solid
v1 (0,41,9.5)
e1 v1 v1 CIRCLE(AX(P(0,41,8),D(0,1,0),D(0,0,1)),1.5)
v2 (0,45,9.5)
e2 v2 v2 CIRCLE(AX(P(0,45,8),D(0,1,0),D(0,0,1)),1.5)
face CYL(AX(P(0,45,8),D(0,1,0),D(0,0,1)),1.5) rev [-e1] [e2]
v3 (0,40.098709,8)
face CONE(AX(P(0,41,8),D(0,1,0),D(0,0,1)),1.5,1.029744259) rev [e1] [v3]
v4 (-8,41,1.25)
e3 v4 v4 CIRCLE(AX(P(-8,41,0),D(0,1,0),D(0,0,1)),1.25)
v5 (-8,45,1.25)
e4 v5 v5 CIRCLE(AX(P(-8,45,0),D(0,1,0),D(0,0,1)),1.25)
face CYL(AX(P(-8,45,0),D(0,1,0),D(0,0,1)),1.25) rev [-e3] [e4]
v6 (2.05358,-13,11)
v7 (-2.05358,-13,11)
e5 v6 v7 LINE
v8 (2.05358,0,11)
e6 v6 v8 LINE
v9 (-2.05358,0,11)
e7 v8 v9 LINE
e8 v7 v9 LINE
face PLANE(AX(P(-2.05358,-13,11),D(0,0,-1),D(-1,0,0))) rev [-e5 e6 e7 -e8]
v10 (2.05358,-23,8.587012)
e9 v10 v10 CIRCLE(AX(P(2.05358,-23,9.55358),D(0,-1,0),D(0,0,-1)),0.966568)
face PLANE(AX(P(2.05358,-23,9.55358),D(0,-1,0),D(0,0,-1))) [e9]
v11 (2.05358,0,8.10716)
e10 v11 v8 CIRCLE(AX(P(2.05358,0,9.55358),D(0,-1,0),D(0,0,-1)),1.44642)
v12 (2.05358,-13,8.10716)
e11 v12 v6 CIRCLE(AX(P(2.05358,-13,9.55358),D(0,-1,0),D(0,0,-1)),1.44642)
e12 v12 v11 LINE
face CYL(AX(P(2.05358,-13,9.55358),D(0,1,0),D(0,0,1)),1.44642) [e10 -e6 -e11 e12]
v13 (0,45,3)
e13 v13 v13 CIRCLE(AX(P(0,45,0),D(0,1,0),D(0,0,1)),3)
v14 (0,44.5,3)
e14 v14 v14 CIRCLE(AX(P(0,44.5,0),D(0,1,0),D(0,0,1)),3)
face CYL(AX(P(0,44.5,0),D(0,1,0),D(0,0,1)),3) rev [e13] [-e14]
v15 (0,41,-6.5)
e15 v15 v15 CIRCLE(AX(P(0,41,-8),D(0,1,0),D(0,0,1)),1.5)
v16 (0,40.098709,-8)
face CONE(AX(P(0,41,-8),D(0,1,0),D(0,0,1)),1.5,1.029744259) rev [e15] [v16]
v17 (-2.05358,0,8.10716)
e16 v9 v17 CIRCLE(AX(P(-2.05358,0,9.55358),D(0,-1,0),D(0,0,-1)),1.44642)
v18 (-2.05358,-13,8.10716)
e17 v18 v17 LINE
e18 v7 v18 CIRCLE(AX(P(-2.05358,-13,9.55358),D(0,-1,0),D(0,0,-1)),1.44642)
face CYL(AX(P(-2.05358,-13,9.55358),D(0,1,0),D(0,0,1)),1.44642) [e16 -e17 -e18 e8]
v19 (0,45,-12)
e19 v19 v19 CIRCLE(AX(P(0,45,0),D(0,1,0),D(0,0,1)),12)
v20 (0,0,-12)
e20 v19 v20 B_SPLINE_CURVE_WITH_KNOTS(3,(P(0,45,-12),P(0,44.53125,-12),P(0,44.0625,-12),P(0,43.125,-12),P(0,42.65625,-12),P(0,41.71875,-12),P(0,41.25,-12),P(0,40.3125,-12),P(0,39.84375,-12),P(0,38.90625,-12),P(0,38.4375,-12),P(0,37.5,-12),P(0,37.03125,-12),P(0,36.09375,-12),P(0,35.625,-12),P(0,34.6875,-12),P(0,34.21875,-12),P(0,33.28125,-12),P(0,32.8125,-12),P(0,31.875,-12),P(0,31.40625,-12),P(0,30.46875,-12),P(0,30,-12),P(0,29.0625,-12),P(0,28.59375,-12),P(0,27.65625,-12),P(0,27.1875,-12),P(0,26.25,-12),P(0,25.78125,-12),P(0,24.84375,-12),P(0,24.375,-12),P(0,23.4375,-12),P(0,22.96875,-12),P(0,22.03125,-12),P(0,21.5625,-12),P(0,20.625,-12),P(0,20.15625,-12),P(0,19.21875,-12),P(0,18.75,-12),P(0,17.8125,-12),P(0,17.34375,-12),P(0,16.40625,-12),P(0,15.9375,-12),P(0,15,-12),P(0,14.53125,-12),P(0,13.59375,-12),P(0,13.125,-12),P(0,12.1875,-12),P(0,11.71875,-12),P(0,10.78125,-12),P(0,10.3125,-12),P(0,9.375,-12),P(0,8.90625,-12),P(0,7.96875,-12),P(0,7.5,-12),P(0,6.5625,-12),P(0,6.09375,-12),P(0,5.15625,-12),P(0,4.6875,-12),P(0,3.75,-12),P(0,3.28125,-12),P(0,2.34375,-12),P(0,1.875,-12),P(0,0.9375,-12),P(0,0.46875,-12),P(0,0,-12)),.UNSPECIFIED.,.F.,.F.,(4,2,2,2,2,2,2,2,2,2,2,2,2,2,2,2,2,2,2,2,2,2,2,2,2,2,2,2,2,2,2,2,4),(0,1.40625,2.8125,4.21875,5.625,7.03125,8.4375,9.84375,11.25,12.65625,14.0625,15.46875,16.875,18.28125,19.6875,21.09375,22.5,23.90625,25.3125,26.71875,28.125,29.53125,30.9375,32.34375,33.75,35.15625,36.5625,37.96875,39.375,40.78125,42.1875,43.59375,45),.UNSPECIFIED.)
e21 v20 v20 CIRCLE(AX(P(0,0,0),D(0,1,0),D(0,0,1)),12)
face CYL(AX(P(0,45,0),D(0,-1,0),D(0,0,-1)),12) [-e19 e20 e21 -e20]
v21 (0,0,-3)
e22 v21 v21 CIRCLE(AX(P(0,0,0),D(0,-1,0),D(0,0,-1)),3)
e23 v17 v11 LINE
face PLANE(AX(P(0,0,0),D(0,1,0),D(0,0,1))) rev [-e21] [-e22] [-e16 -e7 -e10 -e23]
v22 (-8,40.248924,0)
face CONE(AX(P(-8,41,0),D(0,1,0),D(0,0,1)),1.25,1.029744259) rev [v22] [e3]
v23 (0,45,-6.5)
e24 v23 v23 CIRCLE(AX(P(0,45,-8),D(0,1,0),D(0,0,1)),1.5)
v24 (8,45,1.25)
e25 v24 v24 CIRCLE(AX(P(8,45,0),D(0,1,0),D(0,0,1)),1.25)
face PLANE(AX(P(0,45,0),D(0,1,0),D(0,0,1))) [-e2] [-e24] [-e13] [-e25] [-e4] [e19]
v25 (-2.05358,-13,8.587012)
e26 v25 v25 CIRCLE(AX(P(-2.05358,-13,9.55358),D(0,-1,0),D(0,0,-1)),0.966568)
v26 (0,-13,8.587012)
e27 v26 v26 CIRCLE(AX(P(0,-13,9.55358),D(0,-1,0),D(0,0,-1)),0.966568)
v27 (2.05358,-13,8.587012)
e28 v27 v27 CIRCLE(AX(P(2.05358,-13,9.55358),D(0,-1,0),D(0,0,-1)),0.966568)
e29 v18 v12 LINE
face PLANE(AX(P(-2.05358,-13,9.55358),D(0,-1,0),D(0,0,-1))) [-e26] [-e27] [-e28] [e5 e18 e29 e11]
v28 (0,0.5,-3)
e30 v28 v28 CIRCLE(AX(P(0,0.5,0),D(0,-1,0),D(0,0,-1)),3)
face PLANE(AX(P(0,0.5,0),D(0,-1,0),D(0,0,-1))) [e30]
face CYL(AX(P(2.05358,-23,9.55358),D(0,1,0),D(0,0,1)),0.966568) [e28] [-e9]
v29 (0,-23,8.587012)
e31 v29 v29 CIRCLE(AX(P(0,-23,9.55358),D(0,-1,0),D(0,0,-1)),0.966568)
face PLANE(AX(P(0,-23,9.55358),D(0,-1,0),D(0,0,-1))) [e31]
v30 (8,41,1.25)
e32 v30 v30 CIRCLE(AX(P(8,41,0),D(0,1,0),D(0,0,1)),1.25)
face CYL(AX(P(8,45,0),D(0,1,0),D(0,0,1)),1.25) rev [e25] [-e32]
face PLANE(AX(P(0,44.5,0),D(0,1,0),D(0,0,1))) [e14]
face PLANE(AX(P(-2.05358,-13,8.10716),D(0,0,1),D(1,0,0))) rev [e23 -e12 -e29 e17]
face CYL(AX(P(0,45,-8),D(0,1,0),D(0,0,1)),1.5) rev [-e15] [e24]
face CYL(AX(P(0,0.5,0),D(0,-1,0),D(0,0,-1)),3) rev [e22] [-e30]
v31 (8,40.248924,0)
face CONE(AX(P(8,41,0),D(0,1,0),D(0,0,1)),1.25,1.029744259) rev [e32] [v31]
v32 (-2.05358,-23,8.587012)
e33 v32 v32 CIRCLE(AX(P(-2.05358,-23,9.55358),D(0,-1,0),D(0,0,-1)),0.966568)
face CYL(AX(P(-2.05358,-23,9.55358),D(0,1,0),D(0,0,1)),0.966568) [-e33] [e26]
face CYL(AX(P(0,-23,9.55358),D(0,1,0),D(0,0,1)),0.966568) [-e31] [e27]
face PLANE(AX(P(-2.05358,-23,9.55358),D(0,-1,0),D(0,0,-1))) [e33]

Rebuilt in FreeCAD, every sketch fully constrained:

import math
import FreeCAD as App
import Part
import Sketcher

V = App.Vector

doc = App.newDocument("Part")
body = doc.addObject("PartDesign::Body", "Body")

# Sketch on XZ plane
sketch1 = doc.addObject("Sketcher::SketchObject", "Sketch")
body.addObject(sketch1)
sketch1.AttachmentSupport = (doc.XZ_Plane, [""])
sketch1.MapMode = "FlatFace"
sketch1.addGeometry(Part.Circle(V(0, 0, 0), V(0, 0, 1), 12), False)
sketch1.addConstraint(Sketcher.Constraint("Coincident", 0, 3, -1, 1))
sketch1.addConstraint(Sketcher.Constraint("Diameter", 0, 24.0))
pad1 = doc.addObject("PartDesign::Pad", "Pad")
body.addObject(pad1)
pad1.Profile = sketch1
pad1.Length = 45
pad1.Reversed = True

# Sketch on XZ plane
sketch2 = doc.addObject("Sketcher::SketchObject", "Sketch001")
body.addObject(sketch2)
sketch2.AttachmentSupport = (doc.XZ_Plane, [""])
sketch2.MapMode = "FlatFace"
sketch2.AttachmentOffset = App.Placement(V(0, 0, -45), App.Rotation())
sketch2.addGeometry(Part.Circle(V(8, 0, 0), V(0, 0, 1), 1.25), False)
sketch2.addGeometry(Part.Circle(V(-8, 0, 0), V(0, 0, 1), 1.25), False)
sketch2.addConstraint(Sketcher.Constraint("Equal", 0, 1))
sketch2.addConstraint(Sketcher.Constraint("Symmetric", 0, 3, 1, 3, -1, 1))
sketch2.addConstraint(Sketcher.Constraint("PointOnObject", 0, 3, -1))
sketch2.addConstraint(Sketcher.Constraint("Diameter", 0, 2.5))
sketch2.addConstraint(Sketcher.Constraint("DistanceX", -1, 1, 0, 3, 8.0))
doc.recompute()
hole = doc.addObject("PartDesign::Hole", "Hole")
body.addObject(hole)
hole.Profile = sketch2
hole.ThreadType = "None"
hole.Diameter = 2.5
hole.DepthType = "Dimension"
hole.Depth = 4
hole.DrillPoint = "Angled"
hole.DrillPointAngle = 118
hole.Reversed = True

# Sketch on XZ plane
sketch3 = doc.addObject("Sketcher::SketchObject", "Sketch002")
body.addObject(sketch3)
sketch3.AttachmentSupport = (doc.XZ_Plane, [""])
sketch3.MapMode = "FlatFace"
sketch3.AttachmentOffset = App.Placement(V(0, 0, -45), App.Rotation())
sketch3.addGeometry(Part.Circle(V(0, -8, 0), V(0, 0, 1), 1.5), False)
sketch3.addGeometry(Part.Circle(V(0, 8, 0), V(0, 0, 1), 1.5), False)
sketch3.addConstraint(Sketcher.Constraint("Equal", 0, 1))
sketch3.addConstraint(Sketcher.Constraint("Symmetric", 0, 3, 1, 3, -1, 1))
sketch3.addConstraint(Sketcher.Constraint("PointOnObject", 0, 3, -2))
sketch3.addConstraint(Sketcher.Constraint("Diameter", 0, 3.0))
sketch3.addConstraint(Sketcher.Constraint("DistanceY", 0, 3, -1, 1, 8.0))
doc.recompute()
hole2 = doc.addObject("PartDesign::Hole", "Hole001")
body.addObject(hole2)
hole2.Profile = sketch3
hole2.ThreadType = "None"
hole2.Diameter = 3
hole2.DepthType = "Dimension"
hole2.Depth = 4
hole2.DrillPoint = "Angled"
hole2.DrillPointAngle = 118
hole2.Reversed = True

# Sketch on XZ plane
sketch4 = doc.addObject("Sketcher::SketchObject", "Sketch003")
body.addObject(sketch4)
sketch4.AttachmentSupport = (doc.XZ_Plane, [""])
sketch4.MapMode = "FlatFace"
sketch4.addGeometry(Part.LineSegment(V(2.05358, 11, 0), V(-2.05358, 11, 0)), False)
sketch4.addGeometry(Part.ArcOfCircle(Part.Circle(V(-2.05358, 9.55358, 0), V(0, 0, 1), 1.44642), math.radians(90), math.radians(270)), False)
sketch4.addGeometry(Part.LineSegment(V(-2.05358, 8.10716, 0), V(2.05358, 8.10716, 0)), False)
sketch4.addGeometry(Part.ArcOfCircle(Part.Circle(V(2.05358, 9.55358, 0), V(0, 0, 1), 1.44642), math.radians(-90), math.radians(90)), False)
sketch4.addConstraint(Sketcher.Constraint("Tangent", 0, 2, 1, 1))
sketch4.addConstraint(Sketcher.Constraint("Tangent", 1, 2, 2, 1))
sketch4.addConstraint(Sketcher.Constraint("Tangent", 2, 2, 3, 1))
sketch4.addConstraint(Sketcher.Constraint("Tangent", 3, 2, 0, 1))
sketch4.addConstraint(Sketcher.Constraint("Horizontal", 0))
sketch4.addConstraint(Sketcher.Constraint("Horizontal", 2))
sketch4.addConstraint(Sketcher.Constraint("DistanceY", -1, 1, 0, 2, 11.0))
sketch4.addConstraint(Sketcher.Constraint("Radius", 1, 1.44642))
sketch4.addConstraint(Sketcher.Constraint("DistanceX", 0, 2, 0, 1, 4.10716))
sketch4.addConstraint(Sketcher.Constraint("DistanceX", 1, 3, -1, 1, 2.05358))
pad2 = doc.addObject("PartDesign::Pad", "Pad001")
body.addObject(pad2)
pad2.Profile = sketch4
pad2.Length = 13

# Sketch on XZ plane
sketch5 = doc.addObject("Sketcher::SketchObject", "Sketch004")
body.addObject(sketch5)
sketch5.AttachmentSupport = (doc.XZ_Plane, [""])
sketch5.MapMode = "FlatFace"
sketch5.AttachmentOffset = App.Placement(V(0, 0, 13), App.Rotation())
sketch5.addGeometry(Part.Circle(V(-2.05358, 9.55358, 0), V(0, 0, 1), 0.966568), False)
sketch5.addGeometry(Part.Circle(V(0, 9.55358, 0), V(0, 0, 1), 0.966568), False)
sketch5.addGeometry(Part.Circle(V(2.05358, 9.55358, 0), V(0, 0, 1), 0.966568), False)
sketch5.addConstraint(Sketcher.Constraint("Equal", 0, 1))
sketch5.addConstraint(Sketcher.Constraint("Equal", 1, 2))
sketch5.addConstraint(Sketcher.Constraint("Symmetric", 0, 3, 2, 3, -2))
sketch5.addConstraint(Sketcher.Constraint("PointOnObject", 1, 3, -2))
sketch5.addConstraint(Sketcher.Constraint("Horizontal", 0, 3, 1, 3))
sketch5.addConstraint(Sketcher.Constraint("Diameter", 0, 1.933136))
sketch5.addConstraint(Sketcher.Constraint("DistanceX", 0, 3, -1, 1, 2.05358))
sketch5.addConstraint(Sketcher.Constraint("DistanceY", -1, 1, 0, 3, 9.55358))
pad3 = doc.addObject("PartDesign::Pad", "Pad002")
body.addObject(pad3)
pad3.Profile = sketch5
pad3.Length = 10

# Sketch on XZ plane
sketch6 = doc.addObject("Sketcher::SketchObject", "Sketch005")
body.addObject(sketch6)
sketch6.AttachmentSupport = (doc.XZ_Plane, [""])
sketch6.MapMode = "FlatFace"
sketch6.addGeometry(Part.Circle(V(0, 0, 0), V(0, 0, 1), 3), False)
sketch6.addConstraint(Sketcher.Constraint("Coincident", 0, 3, -1, 1))
sketch6.addConstraint(Sketcher.Constraint("Diameter", 0, 6.0))
pocket1 = doc.addObject("PartDesign::Pocket", "Pocket")
body.addObject(pocket1)
pocket1.Profile = sketch6
pocket1.Length = 0.5

# Sketch on XZ plane
sketch7 = doc.addObject("Sketcher::SketchObject", "Sketch006")
body.addObject(sketch7)
sketch7.AttachmentSupport = (doc.XZ_Plane, [""])
sketch7.MapMode = "FlatFace"
sketch7.AttachmentOffset = App.Placement(V(0, 0, -44.5), App.Rotation())
sketch7.addGeometry(Part.Circle(V(0, 0, 0), V(0, 0, 1), 3), False)
sketch7.addConstraint(Sketcher.Constraint("Coincident", 0, 3, -1, 1))
sketch7.addConstraint(Sketcher.Constraint("Diameter", 0, 6.0))
pocket2 = doc.addObject("PartDesign::Pocket", "Pocket001")
body.addObject(pocket2)
pocket2.Profile = sketch7
pocket2.Length = 0.5

doc.recompute()
